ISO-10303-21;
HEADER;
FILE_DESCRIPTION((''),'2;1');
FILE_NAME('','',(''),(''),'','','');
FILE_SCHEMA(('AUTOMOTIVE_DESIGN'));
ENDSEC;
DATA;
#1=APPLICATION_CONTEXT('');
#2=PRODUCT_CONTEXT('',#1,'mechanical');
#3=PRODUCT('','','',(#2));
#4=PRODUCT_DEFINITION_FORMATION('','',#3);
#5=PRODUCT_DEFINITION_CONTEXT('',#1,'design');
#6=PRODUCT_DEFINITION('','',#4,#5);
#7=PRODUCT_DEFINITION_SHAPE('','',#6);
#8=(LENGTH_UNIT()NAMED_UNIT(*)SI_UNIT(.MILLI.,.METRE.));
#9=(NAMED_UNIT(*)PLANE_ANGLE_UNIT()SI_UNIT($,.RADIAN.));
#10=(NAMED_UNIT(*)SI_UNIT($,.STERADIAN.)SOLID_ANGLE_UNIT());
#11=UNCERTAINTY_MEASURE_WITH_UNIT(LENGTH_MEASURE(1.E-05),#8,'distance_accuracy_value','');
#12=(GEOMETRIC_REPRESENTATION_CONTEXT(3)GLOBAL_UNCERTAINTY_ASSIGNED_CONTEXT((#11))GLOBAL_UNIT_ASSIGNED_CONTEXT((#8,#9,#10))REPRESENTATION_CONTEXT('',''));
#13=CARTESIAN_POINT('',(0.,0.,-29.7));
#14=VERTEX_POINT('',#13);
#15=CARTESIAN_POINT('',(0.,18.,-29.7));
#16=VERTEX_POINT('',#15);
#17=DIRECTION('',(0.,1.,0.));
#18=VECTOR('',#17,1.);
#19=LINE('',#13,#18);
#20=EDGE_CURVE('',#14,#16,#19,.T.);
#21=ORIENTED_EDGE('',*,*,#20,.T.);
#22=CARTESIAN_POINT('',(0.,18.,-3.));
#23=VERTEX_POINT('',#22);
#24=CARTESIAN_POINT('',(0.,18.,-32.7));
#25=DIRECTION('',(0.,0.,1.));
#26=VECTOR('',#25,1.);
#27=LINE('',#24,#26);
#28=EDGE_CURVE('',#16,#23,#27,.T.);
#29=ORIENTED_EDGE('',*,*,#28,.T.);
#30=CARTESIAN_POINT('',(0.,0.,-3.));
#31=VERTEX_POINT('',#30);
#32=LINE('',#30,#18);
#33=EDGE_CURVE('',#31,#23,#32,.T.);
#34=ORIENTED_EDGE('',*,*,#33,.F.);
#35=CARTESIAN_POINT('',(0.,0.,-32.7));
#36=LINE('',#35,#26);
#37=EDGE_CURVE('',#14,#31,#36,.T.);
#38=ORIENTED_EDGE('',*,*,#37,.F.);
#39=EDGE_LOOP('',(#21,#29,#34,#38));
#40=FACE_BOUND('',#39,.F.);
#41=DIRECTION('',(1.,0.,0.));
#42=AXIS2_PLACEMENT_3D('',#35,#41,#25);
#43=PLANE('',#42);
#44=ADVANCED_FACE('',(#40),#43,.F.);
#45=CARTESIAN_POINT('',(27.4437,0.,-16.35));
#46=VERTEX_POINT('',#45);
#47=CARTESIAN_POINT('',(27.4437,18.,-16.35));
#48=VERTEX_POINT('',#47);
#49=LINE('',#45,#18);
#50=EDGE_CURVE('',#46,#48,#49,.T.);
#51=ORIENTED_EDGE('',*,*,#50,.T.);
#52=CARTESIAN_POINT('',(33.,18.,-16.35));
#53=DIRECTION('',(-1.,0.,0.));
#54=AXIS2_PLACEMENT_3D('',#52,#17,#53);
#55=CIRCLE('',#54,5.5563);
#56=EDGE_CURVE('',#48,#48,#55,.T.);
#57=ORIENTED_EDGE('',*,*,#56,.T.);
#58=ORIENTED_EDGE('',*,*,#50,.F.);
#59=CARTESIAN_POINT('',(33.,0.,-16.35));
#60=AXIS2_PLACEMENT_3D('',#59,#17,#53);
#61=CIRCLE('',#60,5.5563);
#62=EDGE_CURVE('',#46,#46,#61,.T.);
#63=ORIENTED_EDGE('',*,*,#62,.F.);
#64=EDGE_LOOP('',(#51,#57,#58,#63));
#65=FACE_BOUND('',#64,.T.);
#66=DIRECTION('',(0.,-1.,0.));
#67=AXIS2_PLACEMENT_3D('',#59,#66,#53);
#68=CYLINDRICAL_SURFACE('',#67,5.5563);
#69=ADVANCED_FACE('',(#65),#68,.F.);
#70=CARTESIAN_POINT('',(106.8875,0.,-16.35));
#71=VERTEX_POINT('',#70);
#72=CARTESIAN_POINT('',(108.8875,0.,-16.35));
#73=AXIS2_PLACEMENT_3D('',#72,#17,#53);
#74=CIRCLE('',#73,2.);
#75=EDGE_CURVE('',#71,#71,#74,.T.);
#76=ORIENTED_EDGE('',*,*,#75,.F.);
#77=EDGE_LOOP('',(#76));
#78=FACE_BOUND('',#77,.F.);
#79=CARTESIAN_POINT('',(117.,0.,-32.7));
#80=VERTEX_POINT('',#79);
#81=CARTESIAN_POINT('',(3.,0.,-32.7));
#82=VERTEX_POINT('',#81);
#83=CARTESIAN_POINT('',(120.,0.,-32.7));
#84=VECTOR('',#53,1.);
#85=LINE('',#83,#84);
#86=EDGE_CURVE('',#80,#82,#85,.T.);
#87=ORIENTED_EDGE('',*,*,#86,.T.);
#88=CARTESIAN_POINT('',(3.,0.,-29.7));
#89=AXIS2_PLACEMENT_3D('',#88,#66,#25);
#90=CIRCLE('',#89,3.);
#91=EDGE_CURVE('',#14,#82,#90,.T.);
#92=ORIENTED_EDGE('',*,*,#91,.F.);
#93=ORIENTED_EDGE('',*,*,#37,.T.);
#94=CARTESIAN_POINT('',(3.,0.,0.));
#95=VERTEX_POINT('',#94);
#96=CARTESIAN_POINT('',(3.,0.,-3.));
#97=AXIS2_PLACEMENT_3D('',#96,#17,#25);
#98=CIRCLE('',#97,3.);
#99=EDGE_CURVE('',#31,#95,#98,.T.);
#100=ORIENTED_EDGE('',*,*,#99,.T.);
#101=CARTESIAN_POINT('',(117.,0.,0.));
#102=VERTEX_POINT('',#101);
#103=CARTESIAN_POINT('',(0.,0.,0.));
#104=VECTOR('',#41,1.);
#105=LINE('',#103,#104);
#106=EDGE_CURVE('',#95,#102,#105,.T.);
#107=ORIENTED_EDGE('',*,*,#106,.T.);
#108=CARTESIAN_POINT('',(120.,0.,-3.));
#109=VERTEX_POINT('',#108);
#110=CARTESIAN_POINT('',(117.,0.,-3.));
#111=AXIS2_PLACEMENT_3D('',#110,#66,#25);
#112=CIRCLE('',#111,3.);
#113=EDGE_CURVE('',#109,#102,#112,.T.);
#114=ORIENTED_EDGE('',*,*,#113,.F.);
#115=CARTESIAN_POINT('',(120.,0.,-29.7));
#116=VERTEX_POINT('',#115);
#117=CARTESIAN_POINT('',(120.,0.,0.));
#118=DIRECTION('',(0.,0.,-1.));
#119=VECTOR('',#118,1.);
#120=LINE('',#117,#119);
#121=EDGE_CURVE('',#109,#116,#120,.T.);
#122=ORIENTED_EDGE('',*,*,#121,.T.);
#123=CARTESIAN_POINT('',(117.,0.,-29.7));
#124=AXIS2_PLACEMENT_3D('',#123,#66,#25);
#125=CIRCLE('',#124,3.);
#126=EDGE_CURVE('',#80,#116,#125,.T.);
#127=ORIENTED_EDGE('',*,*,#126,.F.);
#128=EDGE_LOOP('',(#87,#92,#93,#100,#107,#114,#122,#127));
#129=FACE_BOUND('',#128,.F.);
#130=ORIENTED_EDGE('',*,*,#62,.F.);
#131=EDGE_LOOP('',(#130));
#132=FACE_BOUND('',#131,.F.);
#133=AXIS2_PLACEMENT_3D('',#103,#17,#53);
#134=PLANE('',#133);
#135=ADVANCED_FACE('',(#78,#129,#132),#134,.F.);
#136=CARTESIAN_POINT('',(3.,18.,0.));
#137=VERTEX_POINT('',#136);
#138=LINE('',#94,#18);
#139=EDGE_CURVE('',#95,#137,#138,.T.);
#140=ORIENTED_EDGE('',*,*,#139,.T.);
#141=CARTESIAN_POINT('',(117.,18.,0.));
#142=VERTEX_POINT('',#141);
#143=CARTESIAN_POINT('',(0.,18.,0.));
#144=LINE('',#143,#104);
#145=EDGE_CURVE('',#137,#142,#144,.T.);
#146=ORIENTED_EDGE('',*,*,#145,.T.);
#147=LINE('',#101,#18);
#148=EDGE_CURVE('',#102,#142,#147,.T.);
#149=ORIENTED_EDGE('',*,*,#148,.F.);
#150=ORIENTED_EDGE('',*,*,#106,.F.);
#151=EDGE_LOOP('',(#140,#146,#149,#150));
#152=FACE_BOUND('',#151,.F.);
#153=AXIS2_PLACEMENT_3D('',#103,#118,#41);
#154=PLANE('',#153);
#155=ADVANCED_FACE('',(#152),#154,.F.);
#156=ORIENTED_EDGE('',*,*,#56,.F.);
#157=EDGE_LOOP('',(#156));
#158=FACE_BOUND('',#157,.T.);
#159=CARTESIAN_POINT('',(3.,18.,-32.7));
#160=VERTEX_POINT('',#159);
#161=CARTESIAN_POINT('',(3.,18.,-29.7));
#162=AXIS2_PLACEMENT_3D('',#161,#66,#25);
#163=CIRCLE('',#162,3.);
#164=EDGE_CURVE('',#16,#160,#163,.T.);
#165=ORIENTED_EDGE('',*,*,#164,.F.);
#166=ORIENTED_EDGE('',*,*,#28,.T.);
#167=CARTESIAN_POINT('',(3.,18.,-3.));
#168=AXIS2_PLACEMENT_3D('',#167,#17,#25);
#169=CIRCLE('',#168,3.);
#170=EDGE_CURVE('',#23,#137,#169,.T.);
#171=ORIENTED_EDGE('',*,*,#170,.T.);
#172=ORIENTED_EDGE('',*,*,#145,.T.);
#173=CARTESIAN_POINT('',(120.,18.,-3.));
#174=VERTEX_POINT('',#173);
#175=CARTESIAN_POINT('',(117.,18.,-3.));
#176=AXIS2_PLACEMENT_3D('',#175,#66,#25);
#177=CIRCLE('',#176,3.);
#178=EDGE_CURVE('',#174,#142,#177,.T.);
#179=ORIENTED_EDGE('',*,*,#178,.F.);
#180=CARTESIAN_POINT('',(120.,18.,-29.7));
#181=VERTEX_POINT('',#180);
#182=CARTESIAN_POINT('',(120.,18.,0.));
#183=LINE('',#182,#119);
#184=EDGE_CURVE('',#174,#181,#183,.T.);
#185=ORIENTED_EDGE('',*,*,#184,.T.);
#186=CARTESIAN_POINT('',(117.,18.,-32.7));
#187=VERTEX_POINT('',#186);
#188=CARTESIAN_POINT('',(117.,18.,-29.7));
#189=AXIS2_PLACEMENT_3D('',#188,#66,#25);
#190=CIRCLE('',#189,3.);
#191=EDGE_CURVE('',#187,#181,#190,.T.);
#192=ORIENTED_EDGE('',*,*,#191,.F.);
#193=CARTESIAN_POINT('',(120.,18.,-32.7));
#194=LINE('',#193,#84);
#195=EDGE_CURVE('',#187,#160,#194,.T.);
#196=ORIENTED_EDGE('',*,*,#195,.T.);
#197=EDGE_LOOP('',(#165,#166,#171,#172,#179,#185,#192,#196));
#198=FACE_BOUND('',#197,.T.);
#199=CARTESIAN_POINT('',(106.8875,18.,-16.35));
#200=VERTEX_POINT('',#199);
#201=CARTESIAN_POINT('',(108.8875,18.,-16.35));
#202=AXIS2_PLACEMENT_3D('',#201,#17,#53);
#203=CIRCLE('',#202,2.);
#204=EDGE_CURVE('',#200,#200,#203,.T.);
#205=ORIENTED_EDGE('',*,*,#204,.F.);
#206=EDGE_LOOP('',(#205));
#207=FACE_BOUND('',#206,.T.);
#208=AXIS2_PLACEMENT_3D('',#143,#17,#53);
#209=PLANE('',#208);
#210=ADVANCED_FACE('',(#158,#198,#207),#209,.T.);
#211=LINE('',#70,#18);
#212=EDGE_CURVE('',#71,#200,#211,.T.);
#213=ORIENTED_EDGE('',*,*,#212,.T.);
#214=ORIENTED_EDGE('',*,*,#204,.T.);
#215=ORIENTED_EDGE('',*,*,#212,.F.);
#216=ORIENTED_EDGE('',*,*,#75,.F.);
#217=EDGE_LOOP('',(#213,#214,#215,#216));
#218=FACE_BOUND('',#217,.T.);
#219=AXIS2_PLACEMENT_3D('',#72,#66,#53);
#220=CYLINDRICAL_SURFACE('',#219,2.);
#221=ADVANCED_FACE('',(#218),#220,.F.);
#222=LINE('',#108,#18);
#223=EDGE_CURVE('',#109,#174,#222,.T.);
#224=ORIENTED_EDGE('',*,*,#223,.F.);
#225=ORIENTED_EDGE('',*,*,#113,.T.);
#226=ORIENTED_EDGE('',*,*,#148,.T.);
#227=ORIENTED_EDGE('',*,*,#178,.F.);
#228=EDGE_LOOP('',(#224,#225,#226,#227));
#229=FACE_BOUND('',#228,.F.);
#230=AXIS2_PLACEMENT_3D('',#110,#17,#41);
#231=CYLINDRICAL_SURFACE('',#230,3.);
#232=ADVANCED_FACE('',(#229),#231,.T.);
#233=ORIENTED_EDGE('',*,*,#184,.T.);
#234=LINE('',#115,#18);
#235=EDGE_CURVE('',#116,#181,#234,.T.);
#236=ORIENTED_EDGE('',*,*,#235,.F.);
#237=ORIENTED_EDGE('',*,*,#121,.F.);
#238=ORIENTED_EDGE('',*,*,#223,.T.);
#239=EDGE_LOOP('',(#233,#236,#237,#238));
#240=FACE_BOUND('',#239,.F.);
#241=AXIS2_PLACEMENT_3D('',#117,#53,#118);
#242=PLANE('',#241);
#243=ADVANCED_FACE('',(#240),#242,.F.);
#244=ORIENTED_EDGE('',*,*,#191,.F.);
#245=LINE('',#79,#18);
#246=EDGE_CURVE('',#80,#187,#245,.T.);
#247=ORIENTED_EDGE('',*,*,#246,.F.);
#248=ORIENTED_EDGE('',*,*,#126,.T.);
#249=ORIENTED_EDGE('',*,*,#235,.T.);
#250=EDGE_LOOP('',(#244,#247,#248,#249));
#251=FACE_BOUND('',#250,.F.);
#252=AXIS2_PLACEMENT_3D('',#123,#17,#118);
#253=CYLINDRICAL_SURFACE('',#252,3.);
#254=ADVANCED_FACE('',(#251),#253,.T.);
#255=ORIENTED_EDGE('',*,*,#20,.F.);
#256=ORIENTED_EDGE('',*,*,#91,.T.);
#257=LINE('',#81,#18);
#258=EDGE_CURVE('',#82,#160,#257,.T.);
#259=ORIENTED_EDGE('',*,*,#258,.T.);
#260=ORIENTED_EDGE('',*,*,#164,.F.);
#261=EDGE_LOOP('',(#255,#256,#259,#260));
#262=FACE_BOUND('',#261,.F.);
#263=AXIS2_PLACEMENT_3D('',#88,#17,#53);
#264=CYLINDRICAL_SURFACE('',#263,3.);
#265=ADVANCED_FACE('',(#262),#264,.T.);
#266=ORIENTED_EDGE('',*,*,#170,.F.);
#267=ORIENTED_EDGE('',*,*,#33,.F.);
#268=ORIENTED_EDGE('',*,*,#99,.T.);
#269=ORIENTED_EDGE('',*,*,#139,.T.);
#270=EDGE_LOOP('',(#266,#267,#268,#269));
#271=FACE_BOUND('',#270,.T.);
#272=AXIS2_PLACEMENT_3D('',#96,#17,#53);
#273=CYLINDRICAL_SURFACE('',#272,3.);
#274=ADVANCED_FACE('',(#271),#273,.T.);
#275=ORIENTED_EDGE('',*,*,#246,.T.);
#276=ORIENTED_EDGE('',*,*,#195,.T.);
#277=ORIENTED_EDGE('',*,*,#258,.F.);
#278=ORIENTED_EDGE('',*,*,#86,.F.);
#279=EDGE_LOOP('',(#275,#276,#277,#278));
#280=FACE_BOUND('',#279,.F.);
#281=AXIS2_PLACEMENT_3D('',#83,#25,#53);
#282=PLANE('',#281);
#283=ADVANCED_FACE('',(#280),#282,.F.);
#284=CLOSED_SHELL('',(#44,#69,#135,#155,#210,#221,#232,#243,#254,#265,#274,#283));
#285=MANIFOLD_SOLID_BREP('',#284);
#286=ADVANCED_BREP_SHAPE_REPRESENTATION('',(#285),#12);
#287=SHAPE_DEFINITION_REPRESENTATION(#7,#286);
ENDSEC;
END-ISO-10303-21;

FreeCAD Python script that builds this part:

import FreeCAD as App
import Part
import Sketcher
Q = App.Units.Quantity


def edges_at(feature, points):
    """Names of the edges that pass closest to the given points."""
    edges = feature.Shape.Edges
    near = lambda p: min(range(len(edges)), key=lambda i: edges[i].distToShape(Part.Vertex(*p))[0])
    return sorted({f"Edge{near(p) + 1}" for p in points})


def add_polygon(sketch, points):
    """Adds a closed chain of lines whose ends are joined by coincident constraints."""
    first, n = sketch.GeometryCount, len(points)
    for a, b in zip(points, points[1:] + points[:1]):
        sketch.addGeometry(Part.LineSegment(App.Vector(*a, 0), App.Vector(*b, 0)), False)
    for i in range(n):
        sketch.addConstraint(Sketcher.Constraint("Coincident", first + i, 2, first + (i + 1) % n, 1))

doc = App.newDocument("Part")
params = doc.addObject("Spreadsheet::Sheet", "Params")
for row, (alias, value) in enumerate([
    ("sketch1_diameter", "4 mm"),
    ("sketch1_width", "120 mm"),
    ("sketch1_height", "32.7 mm"),
    ("pad1_length", "18 mm"),
    ("fillet_radius", "3 mm"),
], start=1):
    params.set(f"A{row}", alias)
    params.set(f"B{row}", "=" + value)
    params.setAlias(f"B{row}", alias)

body = doc.addObject("PartDesign::Body", "Body")

# Sketch on XZ plane
sketch1 = body.newObject("Sketcher::SketchObject", "Sketch")
sketch1.AttachmentSupport = (doc.getObject("XZ_Plane"), [""])
sketch1.MapMode = "FlatFace"
add_polygon(sketch1, [(0, -32.7), (0, 0), (120, 0), (120, -32.7)])  # lines 0-3
sketch1.addGeometry(Part.Circle(App.Vector(108.8875, -16.35, 0), App.Vector(0, 0, 1), 2), False)  # 4
sketch1.addGeometry(Part.Circle(App.Vector(33, -16.35, 0), App.Vector(0, 0, 1), 5.5563), False)  # 5
sketch1.addConstraint(Sketcher.Constraint("Vertical", 0))
sketch1.addConstraint(Sketcher.Constraint("Horizontal", 1))
sketch1.addConstraint(Sketcher.Constraint("Vertical", 2))
sketch1.addConstraint(Sketcher.Constraint("Horizontal", 3))
sketch1.addConstraint(Sketcher.Constraint("Coincident", 0, 2, -1, 1))
sketch1.addConstraint(Sketcher.Constraint("Horizontal", 4, 3, 5, 3))
sketch1.addConstraint(Sketcher.Constraint("Diameter", 4, Q("4 mm")))
sketch1.addConstraint(Sketcher.Constraint("DistanceX", 1, 1, 1, 2, Q("120 mm")))
sketch1.addConstraint(Sketcher.Constraint("DistanceY", 0, 1, 0, 2, Q("32.7 mm")))
sketch1.addConstraint(Sketcher.Constraint("DistanceX", -1, 1, 5, 3, Q("33 mm")))
sketch1.addConstraint(Sketcher.Constraint("Diameter", 5, Q("11.1126 mm")))
sketch1.addConstraint(Sketcher.Constraint("DistanceX", 4, 3, 1, 2, Q("11.1125 mm")))
sketch1.addConstraint(Sketcher.Constraint("DistanceY", 4, 3, -1, 1, Q("16.35 mm")))
sketch1.setExpression("Constraints[10]", "Params.sketch1_diameter")
sketch1.setExpression("Constraints[11]", "Params.sketch1_width")
sketch1.setExpression("Constraints[12]", "Params.sketch1_height")
pad1 = body.newObject("PartDesign::Pad", "Pad")
pad1.Profile = sketch1
pad1.setExpression("Length", "Params.pad1_length")
pad1.Reversed = True
doc.recompute()

fillet = body.newObject("PartDesign::Fillet", "Fillet")
fillet.Base = (pad1, edges_at(pad1, [
    (0, 9, 0),
    (120, 9, 0),
    (120, 9, -32.7),
    (0, 9, -32.7),
]))
fillet.setExpression("Radius", "Params.fillet_radius")

doc.recompute()
